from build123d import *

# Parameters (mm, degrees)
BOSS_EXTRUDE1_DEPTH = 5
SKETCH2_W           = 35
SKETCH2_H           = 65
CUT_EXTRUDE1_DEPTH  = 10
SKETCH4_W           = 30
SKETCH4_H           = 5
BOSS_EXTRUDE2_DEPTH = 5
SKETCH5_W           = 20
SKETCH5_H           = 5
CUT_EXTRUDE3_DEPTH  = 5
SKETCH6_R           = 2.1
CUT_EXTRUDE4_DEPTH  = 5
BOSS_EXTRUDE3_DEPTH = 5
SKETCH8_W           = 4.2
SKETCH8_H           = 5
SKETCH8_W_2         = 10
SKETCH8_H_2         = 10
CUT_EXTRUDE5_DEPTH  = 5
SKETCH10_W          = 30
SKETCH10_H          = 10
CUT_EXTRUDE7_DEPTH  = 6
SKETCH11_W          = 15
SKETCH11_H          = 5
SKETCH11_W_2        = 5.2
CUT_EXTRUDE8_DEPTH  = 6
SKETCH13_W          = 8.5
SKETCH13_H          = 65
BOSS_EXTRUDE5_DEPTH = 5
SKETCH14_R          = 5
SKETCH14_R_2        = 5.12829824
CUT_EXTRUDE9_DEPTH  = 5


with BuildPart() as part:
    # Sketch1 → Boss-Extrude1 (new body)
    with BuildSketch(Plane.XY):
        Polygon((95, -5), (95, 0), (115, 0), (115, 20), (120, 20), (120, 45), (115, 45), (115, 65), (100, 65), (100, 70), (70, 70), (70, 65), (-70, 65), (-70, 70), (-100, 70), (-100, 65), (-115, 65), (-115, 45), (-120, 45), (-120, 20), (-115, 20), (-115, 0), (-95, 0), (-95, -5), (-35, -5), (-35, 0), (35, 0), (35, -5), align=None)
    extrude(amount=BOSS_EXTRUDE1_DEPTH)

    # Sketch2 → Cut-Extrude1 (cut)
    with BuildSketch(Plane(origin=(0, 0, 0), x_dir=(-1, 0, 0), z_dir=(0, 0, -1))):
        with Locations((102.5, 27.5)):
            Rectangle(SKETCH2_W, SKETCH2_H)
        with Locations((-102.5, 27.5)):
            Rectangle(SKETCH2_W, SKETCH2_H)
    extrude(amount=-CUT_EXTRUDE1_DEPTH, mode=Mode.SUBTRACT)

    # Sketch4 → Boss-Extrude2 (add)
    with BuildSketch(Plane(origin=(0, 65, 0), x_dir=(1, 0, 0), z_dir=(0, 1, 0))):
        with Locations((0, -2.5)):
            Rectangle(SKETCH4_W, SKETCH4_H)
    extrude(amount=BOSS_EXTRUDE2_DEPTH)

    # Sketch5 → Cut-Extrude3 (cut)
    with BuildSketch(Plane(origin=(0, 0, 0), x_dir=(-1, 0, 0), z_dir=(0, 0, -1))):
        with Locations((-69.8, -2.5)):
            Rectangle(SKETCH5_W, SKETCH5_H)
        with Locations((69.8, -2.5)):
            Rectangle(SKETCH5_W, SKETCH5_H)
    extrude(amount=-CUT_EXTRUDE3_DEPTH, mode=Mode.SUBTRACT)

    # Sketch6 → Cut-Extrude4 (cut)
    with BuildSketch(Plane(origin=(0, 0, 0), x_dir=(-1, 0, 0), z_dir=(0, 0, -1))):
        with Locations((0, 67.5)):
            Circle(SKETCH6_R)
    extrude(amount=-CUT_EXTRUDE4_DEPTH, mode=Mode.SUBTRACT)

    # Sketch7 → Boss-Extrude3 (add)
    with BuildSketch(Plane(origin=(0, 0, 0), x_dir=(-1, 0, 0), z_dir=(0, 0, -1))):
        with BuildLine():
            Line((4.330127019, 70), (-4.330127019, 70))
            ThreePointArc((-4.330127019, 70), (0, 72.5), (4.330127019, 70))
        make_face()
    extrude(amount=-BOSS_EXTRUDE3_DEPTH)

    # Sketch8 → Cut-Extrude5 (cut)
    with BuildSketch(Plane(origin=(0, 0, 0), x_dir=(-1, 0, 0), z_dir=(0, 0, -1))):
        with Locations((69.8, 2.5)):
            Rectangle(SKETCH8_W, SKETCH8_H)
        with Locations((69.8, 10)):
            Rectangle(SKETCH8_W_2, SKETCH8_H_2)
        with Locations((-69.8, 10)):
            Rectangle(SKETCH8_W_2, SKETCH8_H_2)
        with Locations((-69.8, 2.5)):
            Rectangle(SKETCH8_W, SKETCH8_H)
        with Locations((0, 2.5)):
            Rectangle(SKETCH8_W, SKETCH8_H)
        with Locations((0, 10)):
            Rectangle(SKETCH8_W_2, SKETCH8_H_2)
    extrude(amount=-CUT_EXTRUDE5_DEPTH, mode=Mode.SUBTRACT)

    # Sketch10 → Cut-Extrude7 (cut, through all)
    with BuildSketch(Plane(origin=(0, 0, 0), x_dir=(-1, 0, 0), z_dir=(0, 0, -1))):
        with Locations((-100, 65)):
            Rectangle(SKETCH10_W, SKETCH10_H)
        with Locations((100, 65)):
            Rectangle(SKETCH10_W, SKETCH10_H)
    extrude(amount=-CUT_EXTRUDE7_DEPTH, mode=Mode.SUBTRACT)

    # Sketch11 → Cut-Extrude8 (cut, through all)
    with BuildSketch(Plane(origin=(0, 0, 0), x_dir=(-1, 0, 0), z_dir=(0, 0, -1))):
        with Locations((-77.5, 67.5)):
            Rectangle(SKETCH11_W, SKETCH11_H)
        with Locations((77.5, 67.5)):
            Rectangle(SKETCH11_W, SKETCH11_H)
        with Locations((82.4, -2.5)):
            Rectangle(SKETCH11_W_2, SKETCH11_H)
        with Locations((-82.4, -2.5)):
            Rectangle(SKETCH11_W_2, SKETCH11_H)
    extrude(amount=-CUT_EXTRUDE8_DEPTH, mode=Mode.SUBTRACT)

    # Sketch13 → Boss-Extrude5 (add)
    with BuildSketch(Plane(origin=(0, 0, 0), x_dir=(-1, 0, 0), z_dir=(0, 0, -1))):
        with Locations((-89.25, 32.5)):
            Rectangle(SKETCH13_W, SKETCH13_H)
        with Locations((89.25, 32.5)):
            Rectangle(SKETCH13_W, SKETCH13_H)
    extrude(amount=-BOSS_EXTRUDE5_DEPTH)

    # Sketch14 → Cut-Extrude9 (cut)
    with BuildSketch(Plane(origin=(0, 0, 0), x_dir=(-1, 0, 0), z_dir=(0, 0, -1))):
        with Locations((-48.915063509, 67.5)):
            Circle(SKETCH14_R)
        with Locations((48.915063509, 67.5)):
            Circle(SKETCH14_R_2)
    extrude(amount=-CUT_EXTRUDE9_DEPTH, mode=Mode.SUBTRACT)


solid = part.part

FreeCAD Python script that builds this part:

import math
import FreeCAD as App
import Part
import Sketcher


def add_polygon(sketch, points):
    """Adds a closed chain of lines whose ends are joined by coincident constraints."""
    first, n = sketch.GeometryCount, len(points)
    for a, b in zip(points, points[1:] + points[:1]):
        sketch.addGeometry(Part.LineSegment(App.Vector(*a, 0), App.Vector(*b, 0)), False)
    for i in range(n):
        sketch.addConstraint(Sketcher.Constraint("Coincident", first + i, 2, first + (i + 1) % n, 1))

doc = App.newDocument("Part")
body = doc.addObject("PartDesign::Body", "Body")

# Sketch on XY plane
sketch1 = body.newObject("Sketcher::SketchObject", "Sketch")
sketch1.AttachmentSupport = (doc.getObject("XY_Plane"), [""])
sketch1.MapMode = "FlatFace"
add_polygon(sketch1, [(95, -5), (95, 0), (115, 0), (115, 20), (120, 20), (120, 45), (115, 45), (115, 65), (100, 65), (100, 70), (70, 70), (70, 65), (-70, 65), (-70, 70), (-100, 70), (-100, 65), (-115, 65), (-115, 45), (-120, 45), (-120, 20), (-115, 20), (-115, 0), (-95, 0), (-95, -5), (-35, -5), (-35, 0), (35, 0), (35, -5)])  # lines 0-27
sketch1.addConstraint(Sketcher.Constraint("Vertical", 0))
sketch1.addConstraint(Sketcher.Constraint("Horizontal", 1))
sketch1.addConstraint(Sketcher.Constraint("Vertical", 2))
sketch1.addConstraint(Sketcher.Constraint("Horizontal", 3))
sketch1.addConstraint(Sketcher.Constraint("Vertical", 4))
sketch1.addConstraint(Sketcher.Constraint("Horizontal", 5))
sketch1.addConstraint(Sketcher.Constraint("Vertical", 6))
sketch1.addConstraint(Sketcher.Constraint("Horizontal", 7))
sketch1.addConstraint(Sketcher.Constraint("Vertical", 8))
sketch1.addConstraint(Sketcher.Constraint("Horizontal", 9))
sketch1.addConstraint(Sketcher.Constraint("Vertical", 10))
sketch1.addConstraint(Sketcher.Constraint("Horizontal", 11))
sketch1.addConstraint(Sketcher.Constraint("Vertical", 12))
sketch1.addConstraint(Sketcher.Constraint("Horizontal", 13))
sketch1.addConstraint(Sketcher.Constraint("Vertical", 14))
sketch1.addConstraint(Sketcher.Constraint("Horizontal", 15))
sketch1.addConstraint(Sketcher.Constraint("Vertical", 16))
sketch1.addConstraint(Sketcher.Constraint("Horizontal", 17))
sketch1.addConstraint(Sketcher.Constraint("Vertical", 18))
sketch1.addConstraint(Sketcher.Constraint("Horizontal", 19))
sketch1.addConstraint(Sketcher.Constraint("Vertical", 20))
sketch1.addConstraint(Sketcher.Constraint("Horizontal", 21))
sketch1.addConstraint(Sketcher.Constraint("Vertical", 22))
sketch1.addConstraint(Sketcher.Constraint("Horizontal", 23))
sketch1.addConstraint(Sketcher.Constraint("Vertical", 24))
sketch1.addConstraint(Sketcher.Constraint("Horizontal", 25))
sketch1.addConstraint(Sketcher.Constraint("Vertical", 26))
sketch1.addConstraint(Sketcher.Constraint("Horizontal", 27))
sketch1.addConstraint(Sketcher.Constraint("Symmetric", 1, 2, 20, 2, -1, 1))
sketch1.addConstraint(Sketcher.Constraint("Symmetric", 24, 2, 25, 2, -1, 1))
sketch1.addConstraint(Sketcher.Constraint("Symmetric", 9, 2, 12, 2, -2))
sketch1.addConstraint(Sketcher.Constraint("Symmetric", 7, 2, 14, 2, -2))
sketch1.addConstraint(Sketcher.Constraint("Symmetric", 5, 2, 16, 2, -2))
sketch1.addConstraint(Sketcher.Constraint("Symmetric", 3, 2, 18, 2, -2))
sketch1.addConstraint(Sketcher.Constraint("Symmetric", 0, 2, 21, 2, -2))
sketch1.addConstraint(Sketcher.Constraint("Horizontal", 7, 2, 10, 2))
sketch1.addConstraint(Sketcher.Constraint("Horizontal", 23, 2, 26, 2))
sketch1.addConstraint(Sketcher.Constraint("Vertical", 2, 2, 5, 2))
sketch1.addConstraint(Sketcher.Constraint("Equal", 19, 0))
sketch1.addConstraint(Sketcher.Constraint("Equal", 21, 2))
sketch1.addConstraint(Sketcher.Constraint("Equal", 2, 6))
sketch1.addConstraint(Sketcher.Constraint("Equal", 0, 8))
sketch1.addConstraint(Sketcher.Constraint("DistanceX", 1, 1, 1, 2, 20.0))
sketch1.addConstraint(Sketcher.Constraint("DistanceX", 3, 1, 3, 2, 5.0))
sketch1.addConstraint(Sketcher.Constraint("DistanceX", 7, 2, 7, 1, 15.0))
sketch1.addConstraint(Sketcher.Constraint("DistanceX", 9, 2, 9, 1, 30.0))
sketch1.addConstraint(Sketcher.Constraint("DistanceX", 11, 2, 11, 1, 140.0))
sketch1.addConstraint(Sketcher.Constraint("DistanceX", 23, 1, 23, 2, 60.0))
sketch1.addConstraint(Sketcher.Constraint("DistanceY", 4, 1, 4, 2, 25.0))
pad1 = body.newObject("PartDesign::Pad", "Pad")
pad1.Profile = sketch1
pad1.Length = 5

# Sketch on XY plane
sketch2 = body.newObject("Sketcher::SketchObject", "Sketch001")
sketch2.AttachmentSupport = (doc.getObject("XY_Plane"), [""])
sketch2.MapMode = "FlatFace"
add_polygon(sketch2, [(-85, 60), (-85, -5), (-120, -5), (-120, 60)])  # lines 0-3
add_polygon(sketch2, [(120, 60), (120, -5), (85, -5), (85, 60)])  # lines 4-7
sketch2.addConstraint(Sketcher.Constraint("Vertical", 0))
sketch2.addConstraint(Sketcher.Constraint("Horizontal", 1))
sketch2.addConstraint(Sketcher.Constraint("Vertical", 2))
sketch2.addConstraint(Sketcher.Constraint("Horizontal", 3))
sketch2.addConstraint(Sketcher.Constraint("Vertical", 4))
sketch2.addConstraint(Sketcher.Constraint("Horizontal", 5))
sketch2.addConstraint(Sketcher.Constraint("Vertical", 6))
sketch2.addConstraint(Sketcher.Constraint("Horizontal", 7))
sketch2.addConstraint(Sketcher.Constraint("Symmetric", 1, 2, 4, 2, -2))
sketch2.addConstraint(Sketcher.Constraint("Symmetric", 3, 2, 6, 2, -2))
sketch2.addConstraint(Sketcher.Constraint("DistanceX", 1, 2, 1, 1, 35.0))
sketch2.addConstraint(Sketcher.Constraint("DistanceY", 0, 2, 0, 1, 65.0))
sketch2.addConstraint(Sketcher.Constraint("DistanceX", 0, 2, -1, 1, 85.0))
sketch2.addConstraint(Sketcher.Constraint("DistanceY", 0, 2, -1, 1, 5.0))
pocket1 = body.newObject("PartDesign::Pocket", "Pocket")
pocket1.Profile = sketch2
pocket1.Length = 10
pocket1.Reversed = True

# Sketch on XZ plane
sketch3 = body.newObject("Sketcher::SketchObject", "Sketch002")
sketch3.AttachmentSupport = (doc.getObject("XZ_Plane"), [""])
sketch3.MapMode = "FlatFace"
sketch3.AttachmentOffset = App.Placement(App.Vector(0, 0, -65), App.Rotation())
add_polygon(sketch3, [(-15, 0), (-15, 5), (15, 5), (15, 0)])  # lines 0-3
sketch3.addConstraint(Sketcher.Constraint("Vertical", 0))
sketch3.addConstraint(Sketcher.Constraint("Horizontal", 1))
sketch3.addConstraint(Sketcher.Constraint("Vertical", 2))
sketch3.addConstraint(Sketcher.Constraint("Horizontal", 3))
sketch3.addConstraint(Sketcher.Constraint("Symmetric", 2, 2, 3, 2, -1, 1))
sketch3.addConstraint(Sketcher.Constraint("DistanceX", 1, 1, 1, 2, 30.0))
sketch3.addConstraint(Sketcher.Constraint("DistanceY", 0, 1, 0, 2, 5.0))
pad2 = body.newObject("PartDesign::Pad", "Pad001")
pad2.Profile = sketch3
pad2.Length = 5
pad2.Reversed = True

# Sketch on XY plane
sketch4 = body.newObject("Sketcher::SketchObject", "Sketch003")
sketch4.AttachmentSupport = (doc.getObject("XY_Plane"), [""])
sketch4.MapMode = "FlatFace"
add_polygon(sketch4, [(80, 0), (80, -5), (60, -5), (60, 0)])  # lines 0-3
add_polygon(sketch4, [(-60, 0), (-60, -5), (-80, -5), (-80, 0)])  # lines 4-7
sketch4.addConstraint(Sketcher.Constraint("Vertical", 0))
sketch4.addConstraint(Sketcher.Constraint("Horizontal", 1))
sketch4.addConstraint(Sketcher.Constraint("Vertical", 2))
sketch4.addConstraint(Sketcher.Constraint("Horizontal", 3))
sketch4.addConstraint(Sketcher.Constraint("Vertical", 4))
sketch4.addConstraint(Sketcher.Constraint("Horizontal", 5))
sketch4.addConstraint(Sketcher.Constraint("Vertical", 6))
sketch4.addConstraint(Sketcher.Constraint("Horizontal", 7))
sketch4.addConstraint(Sketcher.Constraint("Symmetric", 3, 2, 6, 2, -1, 1))
sketch4.addConstraint(Sketcher.Constraint("Symmetric", 1, 2, 4, 2, -2))
sketch4.addConstraint(Sketcher.Constraint("PointOnObject", 2, 2, -1))
sketch4.addConstraint(Sketcher.Constraint("DistanceX", 1, 2, 1, 1, 20.0))
sketch4.addConstraint(Sketcher.Constraint("DistanceY", 0, 2, 0, 1, 5.0))
sketch4.addConstraint(Sketcher.Constraint("DistanceX", -1, 1, 0, 2, 79.8))
pocket2 = body.newObject("PartDesign::Pocket", "Pocket001")
pocket2.Profile = sketch4
pocket2.Length = 5
pocket2.Reversed = True

# Sketch on XY plane
sketch5 = body.newObject("Sketcher::SketchObject", "Sketch004")
sketch5.AttachmentSupport = (doc.getObject("XY_Plane"), [""])
sketch5.MapMode = "FlatFace"
sketch5.addGeometry(Part.Circle(App.Vector(0, 67.5, 0), App.Vector(0, 0, 1), 2.1), False)
sketch5.addConstraint(Sketcher.Constraint("PointOnObject", 0, 3, -2))
sketch5.addConstraint(Sketcher.Constraint("Diameter", 0, 4.2))
sketch5.addConstraint(Sketcher.Constraint("DistanceY", -1, 1, 0, 3, 67.5))
pocket3 = body.newObject("PartDesign::Pocket", "Pocket002")
pocket3.Profile = sketch5
pocket3.Length = 5
pocket3.Reversed = True

# Sketch on XY plane
sketch6 = body.newObject("Sketcher::SketchObject", "Sketch005")
sketch6.AttachmentSupport = (doc.getObject("XY_Plane"), [""])
sketch6.MapMode = "FlatFace"
sketch6.addGeometry(Part.LineSegment(App.Vector(4, 70, 0), App.Vector(-4, 70, 0)), False)
sketch6.addGeometry(Part.ArcOfCircle(Part.Circle(App.Vector(0, 68, 0), App.Vector(0, 0, 1), 5), math.radians(30), math.radians(150)), False)
sketch6.addConstraint(Sketcher.Constraint("Coincident", 0, 1, 1, 1))
sketch6.addConstraint(Sketcher.Constraint("Coincident", 1, 2, 0, 2))
sketch6.addConstraint(Sketcher.Constraint("Horizontal", 0))
sketch6.addConstraint(Sketcher.Constraint("PointOnObject", 1, 3, -2))
sketch6.addConstraint(Sketcher.Constraint("Radius", 1, 5.0))
sketch6.addConstraint(Sketcher.Constraint("DistanceY", -1, 1, 0, 1, 70.0))
sketch6.addConstraint(Sketcher.Constraint("DistanceY", -1, 1, 1, 3, 67.5))
pad3 = body.newObject("PartDesign::Pad", "Pad002")
pad3.Profile = sketch6
pad3.Length = 5

# Sketch on XY plane
sketch7 = body.newObject("Sketcher::SketchObject", "Sketch006")
sketch7.AttachmentSupport = (doc.getObject("XY_Plane"), [""])
sketch7.MapMode = "FlatFace"
add_polygon(sketch7, [(-67.7, 5), (-67.7, 0), (-71.9, 0), (-71.9, 5), (-74.8, 5), (-74.8, 15), (-64.8, 15), (-64.8, 5)])  # lines 0-7
add_polygon(sketch7, [(74.8, 15), (74.8, 5), (71.9, 5), (71.9, 0), (67.7, 0), (67.7, 5), (64.8, 5), (64.8, 15)])  # lines 8-15
add_polygon(sketch7, [(2.1, 5), (2.1, 0), (-2.1, 0), (-2.1, 5), (-5, 5), (-5, 15), (5, 15), (5, 5)])  # lines 16-23
sketch7.addConstraint(Sketcher.Constraint("Vertical", 0))
sketch7.addConstraint(Sketcher.Constraint("Horizontal", 1))
sketch7.addConstraint(Sketcher.Constraint("Vertical", 2))
sketch7.addConstraint(Sketcher.Constraint("Horizontal", 3))
sketch7.addConstraint(Sketcher.Constraint("Vertical", 4))
sketch7.addConstraint(Sketcher.Constraint("Horizontal", 5))
sketch7.addConstraint(Sketcher.Constraint("Vertical", 6))
sketch7.addConstraint(Sketcher.Constraint("Horizontal", 7))
sketch7.addConstraint(Sketcher.Constraint("Vertical", 8))
sketch7.addConstraint(Sketcher.Constraint("Horizontal", 9))
sketch7.addConstraint(Sketcher.Constraint("Vertical", 10))
sketch7.addConstraint(Sketcher.Constraint("Horizontal", 11))
sketch7.addConstraint(Sketcher.Constraint("Vertical", 12))
sketch7.addConstraint(Sketcher.Constraint("Horizontal", 13))
sketch7.addConstraint(Sketcher.Constraint("Vertical", 14))
sketch7.addConstraint(Sketcher.Constraint("Horizontal", 15))
sketch7.addConstraint(Sketcher.Constraint("Vertical", 16))
sketch7.addConstraint(Sketcher.Constraint("Horizontal", 17))
sketch7.addConstraint(Sketcher.Constraint("Vertical", 18))
sketch7.addConstraint(Sketcher.Constraint("Horizontal", 19))
sketch7.addConstraint(Sketcher.Constraint("Vertical", 20))
sketch7.addConstraint(Sketcher.Constraint("Horizontal", 21))
sketch7.addConstraint(Sketcher.Constraint("Vertical", 22))
sketch7.addConstraint(Sketcher.Constraint("Horizontal", 23))
sketch7.addConstraint(Sketcher.Constraint("Symmetric", 1, 2, 10, 2, -1, 1))
sketch7.addConstraint(Sketcher.Constraint("Symmetric", 16, 2, 17, 2, -1, 1))
sketch7.addConstraint(Sketcher.Constraint("Symmetric", 3, 2, 8, 2, -2))
sketch7.addConstraint(Sketcher.Constraint("Symmetric", 0, 2, 11, 2, -2))
sketch7.addConstraint(Sketcher.Constraint("Symmetric", 6, 2, 13, 2, -2))
sketch7.addConstraint(Sketcher.Constraint("Symmetric", 19, 2, 22, 2, -2))
sketch7.addConstraint(Sketcher.Constraint("Horizontal", 3, 2, 6, 2))
sketch7.addConstraint(Sketcher.Constraint("Horizontal", 5, 2, 14, 2))
sketch7.addConstraint(Sketcher.Constraint("Horizontal", 13, 2, 18, 2))
sketch7.addConstraint(Sketcher.Constraint("Horizontal", 15, 2, 20, 2))
sketch7.addConstraint(Sketcher.Constraint("Equal", 3, 7))
sketch7.addConstraint(Sketcher.Constraint("Equal", 11, 17))
sketch7.addConstraint(Sketcher.Constraint("Equal", 13, 19))
sketch7.addConstraint(Sketcher.Constraint("Equal", 21, 4))
sketch7.addConstraint(Sketcher.Constraint("DistanceX", 5, 1, 5, 2, 10.0))
sketch7.addConstraint(Sketcher.Constraint("DistanceY", 0, 2, 0, 1, 5.0))
sketch7.addConstraint(Sketcher.Constraint("DistanceX", 1, 2, 1, 1, 4.2))
sketch7.addConstraint(Sketcher.Constraint("DistanceX", 0, 2, -1, 1, 67.7))
pocket4 = body.newObject("PartDesign::Pocket", "Pocket003")
pocket4.Profile = sketch7
pocket4.Length = 5
pocket4.Reversed = True

# Sketch on XY plane
sketch8 = body.newObject("Sketcher::SketchObject", "Sketch007")
sketch8.AttachmentSupport = (doc.getObject("XY_Plane"), [""])
sketch8.MapMode = "FlatFace"
add_polygon(sketch8, [(115, 70), (115, 60), (85, 60), (85, 70)])  # lines 0-3
add_polygon(sketch8, [(-85, 70), (-85, 60), (-115, 60), (-115, 70)])  # lines 4-7
sketch8.addConstraint(Sketcher.Constraint("Vertical", 0))
sketch8.addConstraint(Sketcher.Constraint("Horizontal", 1))
sketch8.addConstraint(Sketcher.Constraint("Vertical", 2))
sketch8.addConstraint(Sketcher.Constraint("Horizontal", 3))
sketch8.addConstraint(Sketcher.Constraint("Vertical", 4))
sketch8.addConstraint(Sketcher.Constraint("Horizontal", 5))
sketch8.addConstraint(Sketcher.Constraint("Vertical", 6))
sketch8.addConstraint(Sketcher.Constraint("Horizontal", 7))
sketch8.addConstraint(Sketcher.Constraint("Symmetric", 1, 2, 4, 2, -2))
sketch8.addConstraint(Sketcher.Constraint("Symmetric", 3, 2, 6, 2, -2))
sketch8.addConstraint(Sketcher.Constraint("DistanceX", 1, 2, 1, 1, 30.0))
sketch8.addConstraint(Sketcher.Constraint("DistanceY", 0, 2, 0, 1, 10.0))
sketch8.addConstraint(Sketcher.Constraint("DistanceX", -1, 1, 0, 2, 115.0))
sketch8.addConstraint(Sketcher.Constraint("DistanceY", -1, 1, 0, 2, 60.0))
pocket5 = body.newObject("PartDesign::Pocket", "Pocket004")
pocket5.Profile = sketch8
pocket5.Type = "ThroughAll"
pocket5.Reversed = True

# Sketch on XY plane
sketch9 = body.newObject("Sketcher::SketchObject", "Sketch008")
sketch9.AttachmentSupport = (doc.getObject("XY_Plane"), [""])
sketch9.MapMode = "FlatFace"
add_polygon(sketch9, [(85, 70), (85, 65), (70, 65), (70, 70)])  # lines 0-3
add_polygon(sketch9, [(-70, 70), (-70, 65), (-85, 65), (-85, 70)])  # lines 4-7
add_polygon(sketch9, [(-80, 0), (-80, -5), (-85, -5), (-85, 0)])  # lines 8-11
add_polygon(sketch9, [(85, 0), (85, -5), (80, -5), (80, 0)])  # lines 12-15
sketch9.addConstraint(Sketcher.Constraint("Vertical", 0))
sketch9.addConstraint(Sketcher.Constraint("Horizontal", 1))
sketch9.addConstraint(Sketcher.Constraint("Vertical", 2))
sketch9.addConstraint(Sketcher.Constraint("Horizontal", 3))
sketch9.addConstraint(Sketcher.Constraint("Vertical", 4))
sketch9.addConstraint(Sketcher.Constraint("Horizontal", 5))
sketch9.addConstraint(Sketcher.Constraint("Vertical", 6))
sketch9.addConstraint(Sketcher.Constraint("Horizontal", 7))
sketch9.addConstraint(Sketcher.Constraint("Vertical", 8))
sketch9.addConstraint(Sketcher.Constraint("Horizontal", 9))
sketch9.addConstraint(Sketcher.Constraint("Vertical", 10))
sketch9.addConstraint(Sketcher.Constraint("Horizontal", 11))
sketch9.addConstraint(Sketcher.Constraint("Vertical", 12))
sketch9.addConstraint(Sketcher.Constraint("Horizontal", 13))
sketch9.addConstraint(Sketcher.Constraint("Vertical", 14))
sketch9.addConstraint(Sketcher.Constraint("Horizontal", 15))
sketch9.addConstraint(Sketcher.Constraint("Symmetric", 11, 2, 14, 2, -1, 1))
sketch9.addConstraint(Sketcher.Constraint("Symmetric", 1, 2, 4, 2, -2))
sketch9.addConstraint(Sketcher.Constraint("Symmetric", 3, 2, 6, 2, -2))
sketch9.addConstraint(Sketcher.Constraint("Symmetric", 9, 2, 12, 2, -2))
sketch9.addConstraint(Sketcher.Constraint("PointOnObject", 10, 2, -1))
sketch9.addConstraint(Sketcher.Constraint("Vertical", 6, 2, 9, 2))
sketch9.addConstraint(Sketcher.Constraint("Equal", 6, 8))
sketch9.addConstraint(Sketcher.Constraint("DistanceX", 1, 2, 1, 1, 15.0))
sketch9.addConstraint(Sketcher.Constraint("DistanceY", 0, 2, 0, 1, 5.0))
sketch9.addConstraint(Sketcher.Constraint("DistanceX", 9, 2, 9, 1, 5.2))
sketch9.addConstraint(Sketcher.Constraint("DistanceX", -1, 1, 0, 2, 85.0))
sketch9.addConstraint(Sketcher.Constraint("DistanceY", -1, 1, 0, 2, 65.0))
pocket6 = body.newObject("PartDesign::Pocket", "Pocket005")
pocket6.Profile = sketch9
pocket6.Type = "ThroughAll"
pocket6.Reversed = True

# Sketch on XY plane
sketch10 = body.newObject("Sketcher::SketchObject", "Sketch009")
sketch10.AttachmentSupport = (doc.getObject("XY_Plane"), [""])
sketch10.MapMode = "FlatFace"
add_polygon(sketch10, [(94, 65), (94, 0), (85, 0), (85, 65)])  # lines 0-3
add_polygon(sketch10, [(-85, 65), (-85, 0), (-94, 0), (-94, 65)])  # lines 4-7
sketch10.addConstraint(Sketcher.Constraint("Vertical", 0))
sketch10.addConstraint(Sketcher.Constraint("Horizontal", 1))
sketch10.addConstraint(Sketcher.Constraint("Vertical", 2))
sketch10.addConstraint(Sketcher.Constraint("Horizontal", 3))
sketch10.addConstraint(Sketcher.Constraint("Vertical", 4))
sketch10.addConstraint(Sketcher.Constraint("Horizontal", 5))
sketch10.addConstraint(Sketcher.Constraint("Vertical", 6))
sketch10.addConstraint(Sketcher.Constraint("Horizontal", 7))
sketch10.addConstraint(Sketcher.Constraint("Symmetric", 1, 2, 4, 2, -1, 1))
sketch10.addConstraint(Sketcher.Constraint("Symmetric", 0, 2, 5, 2, -2))
sketch10.addConstraint(Sketcher.Constraint("Horizontal", 3, 2, 6, 2))
sketch10.addConstraint(Sketcher.Constraint("DistanceY", 0, 2, 0, 1, 65.0))
sketch10.addConstraint(Sketcher.Constraint("DistanceX", 1, 2, 1, 1, 8.5))
sketch10.addConstraint(Sketcher.Constraint("DistanceX", -1, 1, 1, 2, 85.0))
pad4 = body.newObject("PartDesign::Pad", "Pad003")
pad4.Profile = sketch10
pad4.Length = 5

# Sketch on XY plane
sketch11 = body.newObject("Sketcher::SketchObject", "Sketch010")
sketch11.AttachmentSupport = (doc.getObject("XY_Plane"), [""])
sketch11.MapMode = "FlatFace"
sketch11.addGeometry(Part.Circle(App.Vector(49, 68, 0), App.Vector(0, 0, 1), 5), False)
sketch11.addGeometry(Part.Circle(App.Vector(-49, 68, 0), App.Vector(0, 0, 1), 5), False)
sketch11.addConstraint(Sketcher.Constraint("Symmetric", 0, 3, 1, 3, -2))
sketch11.addConstraint(Sketcher.Constraint("Diameter", 0, 10.0))
sketch11.addConstraint(Sketcher.Constraint("DistanceY", -1, 1, 0, 3, 67.5))
sketch11.addConstraint(Sketcher.Constraint("Diameter", 1, 10.256596))
sketch11.addConstraint(Sketcher.Constraint("DistanceX", -1, 1, 0, 3, 48.915064))
pocket7 = body.newObject("PartDesign::Pocket", "Pocket006")
pocket7.Profile = sketch11
pocket7.Length = 5
pocket7.Reversed = True

doc.recompute()
